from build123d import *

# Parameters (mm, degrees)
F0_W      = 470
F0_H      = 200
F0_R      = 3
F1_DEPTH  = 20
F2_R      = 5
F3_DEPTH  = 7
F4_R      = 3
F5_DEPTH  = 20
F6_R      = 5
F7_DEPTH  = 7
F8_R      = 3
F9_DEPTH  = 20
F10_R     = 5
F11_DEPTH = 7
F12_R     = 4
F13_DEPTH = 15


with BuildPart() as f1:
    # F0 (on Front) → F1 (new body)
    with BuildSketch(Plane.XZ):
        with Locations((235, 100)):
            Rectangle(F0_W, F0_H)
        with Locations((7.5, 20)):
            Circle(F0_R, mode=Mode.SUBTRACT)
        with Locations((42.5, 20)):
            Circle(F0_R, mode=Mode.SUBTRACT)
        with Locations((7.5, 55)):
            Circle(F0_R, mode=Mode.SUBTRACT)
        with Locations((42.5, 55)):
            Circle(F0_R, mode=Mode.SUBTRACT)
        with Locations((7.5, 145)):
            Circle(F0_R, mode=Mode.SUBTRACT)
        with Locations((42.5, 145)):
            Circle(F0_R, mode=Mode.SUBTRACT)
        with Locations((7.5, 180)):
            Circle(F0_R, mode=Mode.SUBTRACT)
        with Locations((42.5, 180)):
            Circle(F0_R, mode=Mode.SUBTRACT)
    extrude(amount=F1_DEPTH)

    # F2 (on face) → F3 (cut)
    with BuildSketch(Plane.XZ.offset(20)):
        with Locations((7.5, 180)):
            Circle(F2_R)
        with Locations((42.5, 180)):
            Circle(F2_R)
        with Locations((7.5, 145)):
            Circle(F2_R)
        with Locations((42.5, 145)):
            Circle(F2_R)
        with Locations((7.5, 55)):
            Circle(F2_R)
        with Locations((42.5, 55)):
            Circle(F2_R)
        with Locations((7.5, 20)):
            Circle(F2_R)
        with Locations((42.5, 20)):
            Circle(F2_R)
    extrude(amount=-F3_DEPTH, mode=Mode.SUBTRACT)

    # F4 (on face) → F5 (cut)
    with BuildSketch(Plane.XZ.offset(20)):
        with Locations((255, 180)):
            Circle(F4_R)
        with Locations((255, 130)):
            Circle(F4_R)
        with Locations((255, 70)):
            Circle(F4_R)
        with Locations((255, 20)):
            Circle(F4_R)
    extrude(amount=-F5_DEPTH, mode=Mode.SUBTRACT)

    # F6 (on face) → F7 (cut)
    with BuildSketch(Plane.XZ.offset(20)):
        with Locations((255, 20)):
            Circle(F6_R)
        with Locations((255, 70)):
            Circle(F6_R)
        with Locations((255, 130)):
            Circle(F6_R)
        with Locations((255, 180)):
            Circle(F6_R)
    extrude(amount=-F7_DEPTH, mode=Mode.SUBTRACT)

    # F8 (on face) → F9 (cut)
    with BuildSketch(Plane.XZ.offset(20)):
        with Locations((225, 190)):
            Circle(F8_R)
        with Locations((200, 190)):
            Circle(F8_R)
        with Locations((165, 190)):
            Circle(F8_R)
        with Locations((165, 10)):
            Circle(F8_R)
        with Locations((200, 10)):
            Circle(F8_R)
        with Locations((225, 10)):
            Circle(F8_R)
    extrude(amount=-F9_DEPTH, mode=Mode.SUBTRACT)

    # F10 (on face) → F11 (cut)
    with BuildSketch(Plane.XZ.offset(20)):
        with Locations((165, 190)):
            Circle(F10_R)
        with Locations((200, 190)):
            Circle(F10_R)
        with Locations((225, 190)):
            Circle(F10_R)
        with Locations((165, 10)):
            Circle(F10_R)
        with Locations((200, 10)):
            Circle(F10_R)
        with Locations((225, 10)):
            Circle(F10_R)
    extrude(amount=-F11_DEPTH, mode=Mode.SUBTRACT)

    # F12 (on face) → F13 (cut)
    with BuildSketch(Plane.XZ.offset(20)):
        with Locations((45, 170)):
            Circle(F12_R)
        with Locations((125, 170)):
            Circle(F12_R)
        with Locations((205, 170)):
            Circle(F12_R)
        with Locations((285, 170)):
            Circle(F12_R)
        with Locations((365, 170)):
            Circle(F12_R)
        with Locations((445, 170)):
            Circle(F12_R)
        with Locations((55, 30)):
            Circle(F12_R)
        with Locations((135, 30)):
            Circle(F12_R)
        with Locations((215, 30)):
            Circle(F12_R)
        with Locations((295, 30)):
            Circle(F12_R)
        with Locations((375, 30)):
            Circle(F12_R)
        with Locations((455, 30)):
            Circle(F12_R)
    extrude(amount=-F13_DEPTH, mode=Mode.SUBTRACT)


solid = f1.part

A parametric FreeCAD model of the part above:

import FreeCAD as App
import Part
import Sketcher


def add_polygon(sketch, points):
    """Adds a closed chain of lines whose ends are joined by coincident constraints."""
    first, n = sketch.GeometryCount, len(points)
    for a, b in zip(points, points[1:] + points[:1]):
        sketch.addGeometry(Part.LineSegment(App.Vector(*a, 0), App.Vector(*b, 0)), False)
    for i in range(n):
        sketch.addConstraint(Sketcher.Constraint("Coincident", first + i, 2, first + (i + 1) % n, 1))

doc = App.newDocument("Part")
body = doc.addObject("PartDesign::Body", "Body")

sketch1 = body.newObject("Sketcher::SketchObject", "Sketch")
sketch1.AttachmentSupport = (doc.getObject("XZ_Plane"), [""])
sketch1.MapMode = "FlatFace"
add_polygon(sketch1, [(0, 200), (0, 0), (470, 0), (470, 200)])
sketch1.addGeometry(Part.Circle(App.Vector(7.5, 20, 0), App.Vector(0, 0, 1), 3), False)
sketch1.addGeometry(Part.Circle(App.Vector(7.5, 55, 0), App.Vector(0, 0, 1), 3), False)
sketch1.addGeometry(Part.Circle(App.Vector(42.5, 20, 0), App.Vector(0, 0, 1), 3), False)
sketch1.addGeometry(Part.Circle(App.Vector(42.5, 55, 0), App.Vector(0, 0, 1), 3), False)
sketch1.addGeometry(Part.Circle(App.Vector(7.5, 145, 0), App.Vector(0, 0, 1), 3), False)
sketch1.addGeometry(Part.Circle(App.Vector(7.5, 180, 0), App.Vector(0, 0, 1), 3), False)
sketch1.addGeometry(Part.Circle(App.Vector(42.5, 145, 0), App.Vector(0, 0, 1), 3), False)
sketch1.addGeometry(Part.Circle(App.Vector(42.5, 180, 0), App.Vector(0, 0, 1), 3), False)
sketch1.addConstraint(Sketcher.Constraint("Vertical", 0))
sketch1.addConstraint(Sketcher.Constraint("Horizontal", 1))
sketch1.addConstraint(Sketcher.Constraint("Vertical", 2))
sketch1.addConstraint(Sketcher.Constraint("Horizontal", 3))
sketch1.addConstraint(Sketcher.Constraint("Coincident", 0, 2, -1, 1))
sketch1.addConstraint(Sketcher.Constraint("Equal", 4, 5))
sketch1.addConstraint(Sketcher.Constraint("Equal", 5, 6))
sketch1.addConstraint(Sketcher.Constraint("Equal", 6, 7))
sketch1.addConstraint(Sketcher.Constraint("Equal", 7, 8))
sketch1.addConstraint(Sketcher.Constraint("Equal", 8, 9))
sketch1.addConstraint(Sketcher.Constraint("Equal", 9, 10))
sketch1.addConstraint(Sketcher.Constraint("Equal", 10, 11))
sketch1.addConstraint(Sketcher.Constraint("Horizontal", 4, 3, 6, 3))
sketch1.addConstraint(Sketcher.Constraint("Horizontal", 5, 3, 7, 3))
sketch1.addConstraint(Sketcher.Constraint("Horizontal", 8, 3, 10, 3))
sketch1.addConstraint(Sketcher.Constraint("Horizontal", 9, 3, 11, 3))
sketch1.addConstraint(Sketcher.Constraint("Vertical", 4, 3, 5, 3))
sketch1.addConstraint(Sketcher.Constraint("Vertical", 6, 3, 7, 3))
sketch1.addConstraint(Sketcher.Constraint("Vertical", 5, 3, 8, 3))
sketch1.addConstraint(Sketcher.Constraint("Vertical", 8, 3, 9, 3))
sketch1.addConstraint(Sketcher.Constraint("Vertical", 7, 3, 10, 3))
sketch1.addConstraint(Sketcher.Constraint("Vertical", 10, 3, 11, 3))
sketch1.addConstraint(Sketcher.Constraint("Diameter", 4, 6.0))
sketch1.addConstraint(Sketcher.Constraint("DistanceX", 1, 1, 1, 2, 470.0))
sketch1.addConstraint(Sketcher.Constraint("DistanceY", 0, 2, 0, 1, 200.0))
sketch1.addConstraint(Sketcher.Constraint("DistanceY", -1, 1, 4, 3, 20.0))
sketch1.addConstraint(Sketcher.Constraint("DistanceY", -1, 1, 5, 3, 55.0))
sketch1.addConstraint(Sketcher.Constraint("DistanceY", -1, 1, 8, 3, 145.0))
sketch1.addConstraint(Sketcher.Constraint("DistanceY", -1, 1, 9, 3, 180.0))
sketch1.addConstraint(Sketcher.Constraint("DistanceX", 4, 3, 6, 3, 35.0))
sketch1.addConstraint(Sketcher.Constraint("DistanceX", -1, 1, 4, 3, 7.5))
pad1 = body.newObject("PartDesign::Pad", "Pad")
pad1.Profile = sketch1
pad1.Length = 20

sketch2 = body.newObject("Sketcher::SketchObject", "Sketch001")
sketch2.AttachmentSupport = (doc.getObject("XZ_Plane"), [""])
sketch2.MapMode = "FlatFace"
sketch2.AttachmentOffset = App.Placement(App.Vector(0, 0, 20), App.Rotation())
sketch2.addGeometry(Part.Circle(App.Vector(8, 180, 0), App.Vector(0, 0, 1), 5), False)
sketch2.addGeometry(Part.Circle(App.Vector(42, 180, 0), App.Vector(0, 0, 1), 5), False)
sketch2.addGeometry(Part.Circle(App.Vector(8, 145, 0), App.Vector(0, 0, 1), 5), False)
sketch2.addGeometry(Part.Circle(App.Vector(42, 145, 0), App.Vector(0, 0, 1), 5), False)
sketch2.addGeometry(Part.Circle(App.Vector(8, 55, 0), App.Vector(0, 0, 1), 5), False)
sketch2.addGeometry(Part.Circle(App.Vector(42, 55, 0), App.Vector(0, 0, 1), 5), False)
sketch2.addGeometry(Part.Circle(App.Vector(8, 20, 0), App.Vector(0, 0, 1), 5), False)
sketch2.addGeometry(Part.Circle(App.Vector(42, 20, 0), App.Vector(0, 0, 1), 5), False)
sketch2.addConstraint(Sketcher.Constraint("Equal", 0, 1))
sketch2.addConstraint(Sketcher.Constraint("Equal", 1, 2))
sketch2.addConstraint(Sketcher.Constraint("Equal", 2, 3))
sketch2.addConstraint(Sketcher.Constraint("Equal", 3, 4))
sketch2.addConstraint(Sketcher.Constraint("Equal", 4, 5))
sketch2.addConstraint(Sketcher.Constraint("Equal", 5, 6))
sketch2.addConstraint(Sketcher.Constraint("Equal", 6, 7))
sketch2.addConstraint(Sketcher.Constraint("Horizontal", 0, 3, 1, 3))
sketch2.addConstraint(Sketcher.Constraint("Horizontal", 2, 3, 3, 3))
sketch2.addConstraint(Sketcher.Constraint("Horizontal", 4, 3, 5, 3))
sketch2.addConstraint(Sketcher.Constraint("Horizontal", 6, 3, 7, 3))
sketch2.addConstraint(Sketcher.Constraint("Vertical", 0, 3, 2, 3))
sketch2.addConstraint(Sketcher.Constraint("Vertical", 1, 3, 3, 3))
sketch2.addConstraint(Sketcher.Constraint("Vertical", 2, 3, 4, 3))
sketch2.addConstraint(Sketcher.Constraint("Vertical", 3, 3, 5, 3))
sketch2.addConstraint(Sketcher.Constraint("Vertical", 4, 3, 6, 3))
sketch2.addConstraint(Sketcher.Constraint("Vertical", 5, 3, 7, 3))
sketch2.addConstraint(Sketcher.Constraint("Diameter", 0, 10.0))
sketch2.addConstraint(Sketcher.Constraint("DistanceY", -1, 1, 0, 3, 180.0))
sketch2.addConstraint(Sketcher.Constraint("DistanceY", -1, 1, 2, 3, 145.0))
sketch2.addConstraint(Sketcher.Constraint("DistanceY", -1, 1, 4, 3, 55.0))
sketch2.addConstraint(Sketcher.Constraint("DistanceY", -1, 1, 6, 3, 20.0))
sketch2.addConstraint(Sketcher.Constraint("DistanceX", 0, 3, 1, 3, 35.0))
sketch2.addConstraint(Sketcher.Constraint("DistanceX", -1, 1, 0, 3, 7.5))
pocket1 = body.newObject("PartDesign::Pocket", "Pocket")
pocket1.Profile = sketch2
pocket1.Length = 7

sketch3 = body.newObject("Sketcher::SketchObject", "Sketch002")
sketch3.AttachmentSupport = (doc.getObject("XZ_Plane"), [""])
sketch3.MapMode = "FlatFace"
sketch3.AttachmentOffset = App.Placement(App.Vector(0, 0, 20), App.Rotation())
sketch3.addGeometry(Part.Circle(App.Vector(255, 180, 0), App.Vector(0, 0, 1), 3), False)
sketch3.addGeometry(Part.Circle(App.Vector(255, 130, 0), App.Vector(0, 0, 1), 3), False)
sketch3.addGeometry(Part.Circle(App.Vector(255, 70, 0), App.Vector(0, 0, 1), 3), False)
sketch3.addGeometry(Part.Circle(App.Vector(255, 20, 0), App.Vector(0, 0, 1), 3), False)
sketch3.addConstraint(Sketcher.Constraint("Equal", 0, 1))
sketch3.addConstraint(Sketcher.Constraint("Equal", 1, 2))
sketch3.addConstraint(Sketcher.Constraint("Equal", 2, 3))
sketch3.addConstraint(Sketcher.Constraint("Vertical", 0, 3, 1, 3))
sketch3.addConstraint(Sketcher.Constraint("Vertical", 1, 3, 2, 3))
sketch3.addConstraint(Sketcher.Constraint("Vertical", 2, 3, 3, 3))
sketch3.addConstraint(Sketcher.Constraint("Diameter", 0, 6.0))
sketch3.addConstraint(Sketcher.Constraint("DistanceX", -1, 1, 0, 3, 255.0))
sketch3.addConstraint(Sketcher.Constraint("DistanceY", -1, 1, 0, 3, 180.0))
sketch3.addConstraint(Sketcher.Constraint("DistanceY", -1, 1, 1, 3, 130.0))
sketch3.addConstraint(Sketcher.Constraint("DistanceY", -1, 1, 2, 3, 70.0))
sketch3.addConstraint(Sketcher.Constraint("DistanceY", -1, 1, 3, 3, 20.0))
pocket2 = body.newObject("PartDesign::Pocket", "Pocket001")
pocket2.Profile = sketch3
pocket2.Length = 20

sketch4 = body.newObject("Sketcher::SketchObject", "Sketch003")
sketch4.AttachmentSupport = (doc.getObject("XZ_Plane"), [""])
sketch4.MapMode = "FlatFace"
sketch4.AttachmentOffset = App.Placement(App.Vector(0, 0, 20), App.Rotation())
sketch4.addGeometry(Part.Circle(App.Vector(255, 20, 0), App.Vector(0, 0, 1), 5), False)
sketch4.addGeometry(Part.Circle(App.Vector(255, 70, 0), App.Vector(0, 0, 1), 5), False)
sketch4.addGeometry(Part.Circle(App.Vector(255, 130, 0), App.Vector(0, 0, 1), 5), False)
sketch4.addGeometry(Part.Circle(App.Vector(255, 180, 0), App.Vector(0, 0, 1), 5), False)
sketch4.addConstraint(Sketcher.Constraint("Equal", 0, 1))
sketch4.addConstraint(Sketcher.Constraint("Equal", 1, 2))
sketch4.addConstraint(Sketcher.Constraint("Equal", 2, 3))
sketch4.addConstraint(Sketcher.Constraint("Vertical", 0, 3, 1, 3))
sketch4.addConstraint(Sketcher.Constraint("Vertical", 1, 3, 2, 3))
sketch4.addConstraint(Sketcher.Constraint("Vertical", 2, 3, 3, 3))
sketch4.addConstraint(Sketcher.Constraint("Diameter", 0, 10.0))
sketch4.addConstraint(Sketcher.Constraint("DistanceX", -1, 1, 0, 3, 255.0))
sketch4.addConstraint(Sketcher.Constraint("DistanceY", -1, 1, 0, 3, 20.0))
sketch4.addConstraint(Sketcher.Constraint("DistanceY", -1, 1, 1, 3, 70.0))
sketch4.addConstraint(Sketcher.Constraint("DistanceY", -1, 1, 2, 3, 130.0))
sketch4.addConstraint(Sketcher.Constraint("DistanceY", -1, 1, 3, 3, 180.0))
pocket3 = body.newObject("PartDesign::Pocket", "Pocket002")
pocket3.Profile = sketch4
pocket3.Length = 7

sketch5 = body.newObject("Sketcher::SketchObject", "Sketch004")
sketch5.AttachmentSupport = (doc.getObject("XZ_Plane"), [""])
sketch5.MapMode = "FlatFace"
sketch5.AttachmentOffset = App.Placement(App.Vector(0, 0, 20), App.Rotation())
sketch5.addGeometry(Part.Circle(App.Vector(225, 190, 0), App.Vector(0, 0, 1), 3), False)
sketch5.addGeometry(Part.Circle(App.Vector(200, 190, 0), App.Vector(0, 0, 1), 3), False)
sketch5.addGeometry(Part.Circle(App.Vector(165, 190, 0), App.Vector(0, 0, 1), 3), False)
sketch5.addGeometry(Part.Circle(App.Vector(165, 10, 0), App.Vector(0, 0, 1), 3), False)
sketch5.addGeometry(Part.Circle(App.Vector(200, 10, 0), App.Vector(0, 0, 1), 3), False)
sketch5.addGeometry(Part.Circle(App.Vector(225, 10, 0), App.Vector(0, 0, 1), 3), False)
sketch5.addConstraint(Sketcher.Constraint("Equal", 0, 1))
sketch5.addConstraint(Sketcher.Constraint("Equal", 1, 2))
sketch5.addConstraint(Sketcher.Constraint("Equal", 2, 3))
sketch5.addConstraint(Sketcher.Constraint("Equal", 3, 4))
sketch5.addConstraint(Sketcher.Constraint("Equal", 4, 5))
sketch5.addConstraint(Sketcher.Constraint("Horizontal", 0, 3, 1, 3))
sketch5.addConstraint(Sketcher.Constraint("Horizontal", 1, 3, 2, 3))
sketch5.addConstraint(Sketcher.Constraint("Horizontal", 3, 3, 4, 3))
sketch5.addConstraint(Sketcher.Constraint("Horizontal", 4, 3, 5, 3))
sketch5.addConstraint(Sketcher.Constraint("Vertical", 2, 3, 3, 3))
sketch5.addConstraint(Sketcher.Constraint("Vertical", 1, 3, 4, 3))
sketch5.addConstraint(Sketcher.Constraint("Vertical", 0, 3, 5, 3))
sketch5.addConstraint(Sketcher.Constraint("Diameter", 0, 6.0))
sketch5.addConstraint(Sketcher.Constraint("DistanceX", -1, 1, 0, 3, 225.0))
sketch5.addConstraint(Sketcher.Constraint("DistanceY", -1, 1, 0, 3, 190.0))
sketch5.addConstraint(Sketcher.Constraint("DistanceX", -1, 1, 1, 3, 200.0))
sketch5.addConstraint(Sketcher.Constraint("DistanceX", -1, 1, 2, 3, 165.0))
sketch5.addConstraint(Sketcher.Constraint("DistanceY", -1, 1, 3, 3, 10.0))
pocket4 = body.newObject("PartDesign::Pocket", "Pocket003")
pocket4.Profile = sketch5
pocket4.Length = 20

sketch6 = body.newObject("Sketcher::SketchObject", "Sketch005")
sketch6.AttachmentSupport = (doc.getObject("XZ_Plane"), [""])
sketch6.MapMode = "FlatFace"
sketch6.AttachmentOffset = App.Placement(App.Vector(0, 0, 20), App.Rotation())
sketch6.addGeometry(Part.Circle(App.Vector(165, 190, 0), App.Vector(0, 0, 1), 5), False)
sketch6.addGeometry(Part.Circle(App.Vector(200, 190, 0), App.Vector(0, 0, 1), 5), False)
sketch6.addGeometry(Part.Circle(App.Vector(225, 190, 0), App.Vector(0, 0, 1), 5), False)
sketch6.addGeometry(Part.Circle(App.Vector(165, 10, 0), App.Vector(0, 0, 1), 5), False)
sketch6.addGeometry(Part.Circle(App.Vector(200, 10, 0), App.Vector(0, 0, 1), 5), False)
sketch6.addGeometry(Part.Circle(App.Vector(225, 10, 0), App.Vector(0, 0, 1), 5), False)
sketch6.addConstraint(Sketcher.Constraint("Equal", 0, 1))
sketch6.addConstraint(Sketcher.Constraint("Equal", 1, 2))
sketch6.addConstraint(Sketcher.Constraint("Equal", 2, 3))
sketch6.addConstraint(Sketcher.Constraint("Equal", 3, 4))
sketch6.addConstraint(Sketcher.Constraint("Equal", 4, 5))
sketch6.addConstraint(Sketcher.Constraint("Horizontal", 0, 3, 1, 3))
sketch6.addConstraint(Sketcher.Constraint("Horizontal", 1, 3, 2, 3))
sketch6.addConstraint(Sketcher.Constraint("Horizontal", 3, 3, 4, 3))
sketch6.addConstraint(Sketcher.Constraint("Horizontal", 4, 3, 5, 3))
sketch6.addConstraint(Sketcher.Constraint("Vertical", 0, 3, 3, 3))
sketch6.addConstraint(Sketcher.Constraint("Vertical", 1, 3, 4, 3))
sketch6.addConstraint(Sketcher.Constraint("Vertical", 2, 3, 5, 3))
sketch6.addConstraint(Sketcher.Constraint("Diameter", 0, 10.0))
sketch6.addConstraint(Sketcher.Constraint("DistanceX", -1, 1, 0, 3, 165.0))
sketch6.addConstraint(Sketcher.Constraint("DistanceY", -1, 1, 0, 3, 190.0))
sketch6.addConstraint(Sketcher.Constraint("DistanceX", -1, 1, 1, 3, 200.0))
sketch6.addConstraint(Sketcher.Constraint("DistanceX", -1, 1, 2, 3, 225.0))
sketch6.addConstraint(Sketcher.Constraint("DistanceY", -1, 1, 3, 3, 10.0))
pocket5 = body.newObject("PartDesign::Pocket", "Pocket004")
pocket5.Profile = sketch6
pocket5.Length = 7

sketch7 = body.newObject("Sketcher::SketchObject", "Sketch006")
sketch7.AttachmentSupport = (doc.getObject("XZ_Plane"), [""])
sketch7.MapMode = "FlatFace"
sketch7.AttachmentOffset = App.Placement(App.Vector(0, 0, 20), App.Rotation())
sketch7.addGeometry(Part.Circle(App.Vector(45, 170, 0), App.Vector(0, 0, 1), 4), False)
sketch7.addGeometry(Part.Circle(App.Vector(125, 170, 0), App.Vector(0, 0, 1), 4), False)
sketch7.addGeometry(Part.Circle(App.Vector(205, 170, 0), App.Vector(0, 0, 1), 4), False)
sketch7.addGeometry(Part.Circle(App.Vector(285, 170, 0), App.Vector(0, 0, 1), 4), False)
sketch7.addGeometry(Part.Circle(App.Vector(365, 170, 0), App.Vector(0, 0, 1), 4), False)
sketch7.addGeometry(Part.Circle(App.Vector(445, 170, 0), App.Vector(0, 0, 1), 4), False)
sketch7.addGeometry(Part.Circle(App.Vector(55, 30, 0), App.Vector(0, 0, 1), 4), False)
sketch7.addGeometry(Part.Circle(App.Vector(135, 30, 0), App.Vector(0, 0, 1), 4), False)
sketch7.addGeometry(Part.Circle(App.Vector(215, 30, 0), App.Vector(0, 0, 1), 4), False)
sketch7.addGeometry(Part.Circle(App.Vector(295, 30, 0), App.Vector(0, 0, 1), 4), False)
sketch7.addGeometry(Part.Circle(App.Vector(375, 30, 0), App.Vector(0, 0, 1), 4), False)
sketch7.addGeometry(Part.Circle(App.Vector(455, 30, 0), App.Vector(0, 0, 1), 4), False)
sketch7.addConstraint(Sketcher.Constraint("Equal", 0, 1))
sketch7.addConstraint(Sketcher.Constraint("Equal", 1, 2))
sketch7.addConstraint(Sketcher.Constraint("Equal", 2, 3))
sketch7.addConstraint(Sketcher.Constraint("Equal", 3, 4))
sketch7.addConstraint(Sketcher.Constraint("Equal", 4, 5))
sketch7.addConstraint(Sketcher.Constraint("Equal", 5, 6))
sketch7.addConstraint(Sketcher.Constraint("Equal", 6, 7))
sketch7.addConstraint(Sketcher.Constraint("Equal", 7, 8))
sketch7.addConstraint(Sketcher.Constraint("Equal", 8, 9))
sketch7.addConstraint(Sketcher.Constraint("Equal", 9, 10))
sketch7.addConstraint(Sketcher.Constraint("Equal", 10, 11))
sketch7.addConstraint(Sketcher.Constraint("Horizontal", 0, 3, 1, 3))
sketch7.addConstraint(Sketcher.Constraint("Horizontal", 1, 3, 2, 3))
sketch7.addConstraint(Sketcher.Constraint("Horizontal", 2, 3, 3, 3))
sketch7.addConstraint(Sketcher.Constraint("Horizontal", 3, 3, 4, 3))
sketch7.addConstraint(Sketcher.Constraint("Horizontal", 4, 3, 5, 3))
sketch7.addConstraint(Sketcher.Constraint("Horizontal", 6, 3, 7, 3))
sketch7.addConstraint(Sketcher.Constraint("Horizontal", 7, 3, 8, 3))
sketch7.addConstraint(Sketcher.Constraint("Horizontal", 8, 3, 9, 3))
sketch7.addConstraint(Sketcher.Constraint("Horizontal", 9, 3, 10, 3))
sketch7.addConstraint(Sketcher.Constraint("Horizontal", 10, 3, 11, 3))
sketch7.addConstraint(Sketcher.Constraint("Diameter", 0, 8.0))
sketch7.addConstraint(Sketcher.Constraint("DistanceX", -1, 1, 0, 3, 45.0))
sketch7.addConstraint(Sketcher.Constraint("DistanceY", -1, 1, 0, 3, 170.0))
sketch7.addConstraint(Sketcher.Constraint("DistanceX", -1, 1, 1, 3, 125.0))
sketch7.addConstraint(Sketcher.Constraint("DistanceX", -1, 1, 2, 3, 205.0))
sketch7.addConstraint(Sketcher.Constraint("DistanceX", -1, 1, 3, 3, 285.0))
sketch7.addConstraint(Sketcher.Constraint("DistanceX", -1, 1, 4, 3, 365.0))
sketch7.addConstraint(Sketcher.Constraint("DistanceX", -1, 1, 5, 3, 445.0))
sketch7.addConstraint(Sketcher.Constraint("DistanceX", -1, 1, 6, 3, 55.0))
sketch7.addConstraint(Sketcher.Constraint("DistanceY", -1, 1, 6, 3, 30.0))
sketch7.addConstraint(Sketcher.Constraint("DistanceX", -1, 1, 7, 3, 135.0))
sketch7.addConstraint(Sketcher.Constraint("DistanceX", -1, 1, 8, 3, 215.0))
sketch7.addConstraint(Sketcher.Constraint("DistanceX", -1, 1, 9, 3, 295.0))
sketch7.addConstraint(Sketcher.Constraint("DistanceX", -1, 1, 10, 3, 375.0))
sketch7.addConstraint(Sketcher.Constraint("DistanceX", -1, 1, 11, 3, 455.0))
pocket6 = body.newObject("PartDesign::Pocket", "Pocket005")
pocket6.Profile = sketch7
pocket6.Length = 15

doc.recompute()
